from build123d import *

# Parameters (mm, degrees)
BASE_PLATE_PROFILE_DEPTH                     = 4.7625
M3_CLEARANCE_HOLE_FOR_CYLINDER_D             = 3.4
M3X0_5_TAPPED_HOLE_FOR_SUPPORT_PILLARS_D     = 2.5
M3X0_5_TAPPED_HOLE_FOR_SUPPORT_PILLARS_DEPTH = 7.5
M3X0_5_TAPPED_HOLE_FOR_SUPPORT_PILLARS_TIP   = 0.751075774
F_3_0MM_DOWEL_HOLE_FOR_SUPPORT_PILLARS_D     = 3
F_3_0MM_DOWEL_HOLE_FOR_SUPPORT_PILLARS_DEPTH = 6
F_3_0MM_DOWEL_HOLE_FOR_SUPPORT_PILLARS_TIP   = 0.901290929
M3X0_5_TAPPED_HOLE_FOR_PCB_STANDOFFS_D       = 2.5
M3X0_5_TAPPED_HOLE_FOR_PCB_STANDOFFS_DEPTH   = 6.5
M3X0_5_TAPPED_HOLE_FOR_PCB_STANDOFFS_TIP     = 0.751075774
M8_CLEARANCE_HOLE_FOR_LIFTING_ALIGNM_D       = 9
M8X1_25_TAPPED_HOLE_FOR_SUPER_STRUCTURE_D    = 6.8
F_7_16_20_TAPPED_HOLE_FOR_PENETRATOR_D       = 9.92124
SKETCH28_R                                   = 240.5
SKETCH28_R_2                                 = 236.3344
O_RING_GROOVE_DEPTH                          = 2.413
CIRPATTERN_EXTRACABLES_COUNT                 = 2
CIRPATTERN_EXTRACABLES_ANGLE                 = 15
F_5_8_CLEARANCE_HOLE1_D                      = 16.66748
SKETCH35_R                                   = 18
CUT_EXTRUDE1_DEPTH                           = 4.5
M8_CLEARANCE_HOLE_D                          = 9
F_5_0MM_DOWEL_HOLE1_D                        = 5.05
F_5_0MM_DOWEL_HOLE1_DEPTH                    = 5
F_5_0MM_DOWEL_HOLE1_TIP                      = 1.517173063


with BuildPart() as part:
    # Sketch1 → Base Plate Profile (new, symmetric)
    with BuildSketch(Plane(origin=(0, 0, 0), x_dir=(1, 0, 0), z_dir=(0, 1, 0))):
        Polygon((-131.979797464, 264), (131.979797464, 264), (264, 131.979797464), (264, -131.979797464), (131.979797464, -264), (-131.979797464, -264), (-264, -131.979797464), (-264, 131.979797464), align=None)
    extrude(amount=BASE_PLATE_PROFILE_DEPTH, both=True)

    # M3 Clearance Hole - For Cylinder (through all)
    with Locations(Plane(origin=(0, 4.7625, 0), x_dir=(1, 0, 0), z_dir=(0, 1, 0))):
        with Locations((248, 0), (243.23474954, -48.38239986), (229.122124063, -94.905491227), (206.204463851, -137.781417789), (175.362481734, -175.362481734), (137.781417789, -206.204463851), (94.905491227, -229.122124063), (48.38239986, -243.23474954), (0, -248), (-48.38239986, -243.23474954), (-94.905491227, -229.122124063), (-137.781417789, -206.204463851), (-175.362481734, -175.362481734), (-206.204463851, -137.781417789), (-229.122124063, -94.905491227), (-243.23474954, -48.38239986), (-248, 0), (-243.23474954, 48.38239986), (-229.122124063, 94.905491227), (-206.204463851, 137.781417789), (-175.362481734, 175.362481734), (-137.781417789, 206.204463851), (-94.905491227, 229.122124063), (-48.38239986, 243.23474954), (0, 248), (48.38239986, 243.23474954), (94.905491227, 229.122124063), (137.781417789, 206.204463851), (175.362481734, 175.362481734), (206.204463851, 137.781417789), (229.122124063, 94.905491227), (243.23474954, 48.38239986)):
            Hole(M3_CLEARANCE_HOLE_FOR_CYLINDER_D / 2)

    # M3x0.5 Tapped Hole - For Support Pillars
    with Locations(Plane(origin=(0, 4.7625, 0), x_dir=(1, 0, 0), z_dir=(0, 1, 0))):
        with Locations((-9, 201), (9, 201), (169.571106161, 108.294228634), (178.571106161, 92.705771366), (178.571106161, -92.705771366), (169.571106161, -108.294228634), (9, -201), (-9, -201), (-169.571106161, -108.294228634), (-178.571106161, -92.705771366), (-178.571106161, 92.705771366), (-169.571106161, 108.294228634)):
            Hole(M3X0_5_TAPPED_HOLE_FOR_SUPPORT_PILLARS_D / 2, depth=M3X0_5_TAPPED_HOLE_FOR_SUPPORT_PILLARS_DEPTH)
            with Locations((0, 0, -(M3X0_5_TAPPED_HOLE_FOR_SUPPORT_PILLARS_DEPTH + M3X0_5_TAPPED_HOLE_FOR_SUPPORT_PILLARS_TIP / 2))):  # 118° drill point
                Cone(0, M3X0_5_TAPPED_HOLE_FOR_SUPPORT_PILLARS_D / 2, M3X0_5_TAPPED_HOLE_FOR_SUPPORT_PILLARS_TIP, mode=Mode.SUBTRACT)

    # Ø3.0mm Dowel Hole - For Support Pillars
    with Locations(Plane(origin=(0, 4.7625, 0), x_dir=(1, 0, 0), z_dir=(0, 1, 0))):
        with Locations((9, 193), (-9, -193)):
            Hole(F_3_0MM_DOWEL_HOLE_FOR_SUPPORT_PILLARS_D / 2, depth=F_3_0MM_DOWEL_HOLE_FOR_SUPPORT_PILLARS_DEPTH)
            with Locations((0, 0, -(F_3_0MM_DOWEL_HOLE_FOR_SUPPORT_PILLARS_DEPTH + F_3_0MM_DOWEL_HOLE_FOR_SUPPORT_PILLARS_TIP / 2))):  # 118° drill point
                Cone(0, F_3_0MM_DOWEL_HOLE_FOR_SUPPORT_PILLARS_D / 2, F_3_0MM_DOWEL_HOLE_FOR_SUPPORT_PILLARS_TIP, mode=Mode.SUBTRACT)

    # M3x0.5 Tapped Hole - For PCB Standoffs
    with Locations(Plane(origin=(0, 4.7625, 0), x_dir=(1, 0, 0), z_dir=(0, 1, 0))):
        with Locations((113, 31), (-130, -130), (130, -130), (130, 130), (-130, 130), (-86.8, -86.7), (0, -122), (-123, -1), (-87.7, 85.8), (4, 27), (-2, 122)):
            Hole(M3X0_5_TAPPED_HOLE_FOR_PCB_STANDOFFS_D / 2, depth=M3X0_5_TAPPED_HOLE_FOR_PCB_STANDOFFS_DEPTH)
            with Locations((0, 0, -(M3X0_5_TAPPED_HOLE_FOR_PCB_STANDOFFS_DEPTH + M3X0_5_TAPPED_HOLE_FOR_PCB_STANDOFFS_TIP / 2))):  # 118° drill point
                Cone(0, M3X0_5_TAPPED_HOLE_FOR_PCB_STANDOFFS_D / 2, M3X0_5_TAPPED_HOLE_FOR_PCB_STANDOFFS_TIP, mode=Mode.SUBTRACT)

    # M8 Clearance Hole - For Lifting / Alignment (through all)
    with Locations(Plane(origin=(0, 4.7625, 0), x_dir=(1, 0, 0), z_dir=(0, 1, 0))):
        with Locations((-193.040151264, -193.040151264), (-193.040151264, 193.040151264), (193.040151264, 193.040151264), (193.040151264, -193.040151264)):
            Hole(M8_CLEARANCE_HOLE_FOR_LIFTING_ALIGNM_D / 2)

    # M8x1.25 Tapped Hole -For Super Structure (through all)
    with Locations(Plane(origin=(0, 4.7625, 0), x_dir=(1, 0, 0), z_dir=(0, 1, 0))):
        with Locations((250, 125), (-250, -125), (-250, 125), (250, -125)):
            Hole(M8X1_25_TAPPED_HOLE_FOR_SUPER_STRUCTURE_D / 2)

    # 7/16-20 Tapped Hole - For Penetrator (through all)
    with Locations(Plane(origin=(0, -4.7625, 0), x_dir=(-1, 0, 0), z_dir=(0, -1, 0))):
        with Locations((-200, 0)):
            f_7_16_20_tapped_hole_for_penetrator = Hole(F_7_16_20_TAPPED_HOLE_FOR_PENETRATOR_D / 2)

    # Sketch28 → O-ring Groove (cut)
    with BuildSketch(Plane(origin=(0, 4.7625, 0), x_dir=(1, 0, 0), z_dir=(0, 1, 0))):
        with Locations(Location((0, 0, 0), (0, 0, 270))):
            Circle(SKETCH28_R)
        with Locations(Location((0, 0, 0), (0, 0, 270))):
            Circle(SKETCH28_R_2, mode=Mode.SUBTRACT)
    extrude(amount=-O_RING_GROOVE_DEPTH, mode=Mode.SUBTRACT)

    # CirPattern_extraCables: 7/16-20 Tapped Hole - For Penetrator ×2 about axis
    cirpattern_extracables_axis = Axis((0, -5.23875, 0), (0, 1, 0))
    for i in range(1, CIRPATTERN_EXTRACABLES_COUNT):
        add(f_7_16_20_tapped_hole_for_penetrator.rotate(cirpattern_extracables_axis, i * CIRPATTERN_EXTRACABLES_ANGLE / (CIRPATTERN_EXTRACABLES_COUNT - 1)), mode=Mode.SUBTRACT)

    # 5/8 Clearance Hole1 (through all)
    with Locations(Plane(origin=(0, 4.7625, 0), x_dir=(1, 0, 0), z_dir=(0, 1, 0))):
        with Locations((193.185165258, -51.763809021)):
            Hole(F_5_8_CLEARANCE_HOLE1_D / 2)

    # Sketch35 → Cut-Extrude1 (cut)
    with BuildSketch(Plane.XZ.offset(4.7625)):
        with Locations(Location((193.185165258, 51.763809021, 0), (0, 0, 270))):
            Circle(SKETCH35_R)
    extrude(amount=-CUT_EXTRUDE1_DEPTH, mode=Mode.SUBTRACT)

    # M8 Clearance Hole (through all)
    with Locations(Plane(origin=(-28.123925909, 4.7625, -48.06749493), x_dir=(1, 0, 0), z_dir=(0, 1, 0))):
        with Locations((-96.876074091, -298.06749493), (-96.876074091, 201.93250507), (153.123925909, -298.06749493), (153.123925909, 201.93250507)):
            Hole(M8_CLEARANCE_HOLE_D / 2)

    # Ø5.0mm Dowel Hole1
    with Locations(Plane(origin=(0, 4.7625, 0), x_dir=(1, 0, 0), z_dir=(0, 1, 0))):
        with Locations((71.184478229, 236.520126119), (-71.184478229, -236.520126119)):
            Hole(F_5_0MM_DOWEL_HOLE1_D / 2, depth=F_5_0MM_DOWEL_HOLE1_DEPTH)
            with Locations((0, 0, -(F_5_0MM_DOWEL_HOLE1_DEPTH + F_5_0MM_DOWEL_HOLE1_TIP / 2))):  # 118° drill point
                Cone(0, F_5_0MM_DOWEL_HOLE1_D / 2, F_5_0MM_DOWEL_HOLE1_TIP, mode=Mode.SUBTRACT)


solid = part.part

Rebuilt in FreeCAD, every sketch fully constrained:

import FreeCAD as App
import Part
import Sketcher


def add_polygon(sketch, points):
    """Adds a closed chain of lines whose ends are joined by coincident constraints."""
    first, n = sketch.GeometryCount, len(points)
    for a, b in zip(points, points[1:] + points[:1]):
        sketch.addGeometry(Part.LineSegment(App.Vector(*a, 0), App.Vector(*b, 0)), False)
    for i in range(n):
        sketch.addConstraint(Sketcher.Constraint("Coincident", first + i, 2, first + (i + 1) % n, 1))

doc = App.newDocument("Part")
body = doc.addObject("PartDesign::Body", "Body")

# Sketch on XZ plane
sketch1 = body.newObject("Sketcher::SketchObject", "Sketch")
sketch1.AttachmentSupport = (doc.getObject("XZ_Plane"), [""])
sketch1.MapMode = "FlatFace"
add_polygon(sketch1, [(132, -264), (-132, -264), (-264, -132), (-264, 132), (-132, 264), (132, 264), (264, 132), (264, -132)])  # lines 0-7
sketch1.addConstraint([
    Sketcher.Constraint("Horizontal", 0),
    Sketcher.Constraint("Vertical", 2),
    Sketcher.Constraint("Horizontal", 4),
    Sketcher.Constraint("Vertical", 6),
    Sketcher.Constraint("Symmetric", 0, 2, 4, 2, -1, 1),
    Sketcher.Constraint("Symmetric", 1, 2, 5, 2, -1, 1),
    Sketcher.Constraint("Perpendicular", 1, 3),
    Sketcher.Constraint("Perpendicular", 5, 7),
    Sketcher.Constraint("Horizontal", 2, 2, 5, 2),
    Sketcher.Constraint("Horizontal", 1, 2, 6, 2),
    Sketcher.Constraint("Vertical", 0, 2, 3, 2),
    Sketcher.Constraint("Equal", 4, 2),
    Sketcher.Constraint("DistanceY", 0, 2, -1, 1, 264.0),
    Sketcher.Constraint("Distance", 1, 186.704761),
])
pad1 = body.newObject("PartDesign::Pad", "Pad")
pad1.Profile = sketch1
pad1.Length = 9.525
pad1.Midplane = True

# Sketch on XZ plane
sketch2 = body.newObject("Sketcher::SketchObject", "Sketch001")
sketch2.AttachmentSupport = (doc.getObject("XZ_Plane"), [""])
sketch2.MapMode = "FlatFace"
sketch2.AttachmentOffset = App.Placement(App.Vector(0, 0, -4.7625), App.Rotation())
sketch2.addGeometry([
    Part.Circle(App.Vector(248, 0, 0), App.Vector(0, 0, 1), 1.7),  # 0
    Part.Circle(App.Vector(243.2, 48.4, 0), App.Vector(0, 0, 1), 1.7),  # 1
    Part.Circle(App.Vector(229.1, 94.9, 0), App.Vector(0, 0, 1), 1.7),  # 2
    Part.Circle(App.Vector(206.2, 137.8, 0), App.Vector(0, 0, 1), 1.7),  # 3
    Part.Circle(App.Vector(175.4, 175.4, 0), App.Vector(0, 0, 1), 1.7),  # 4
    Part.Circle(App.Vector(137.8, 206.2, 0), App.Vector(0, 0, 1), 1.7),  # 5
    Part.Circle(App.Vector(94.9, 229.1, 0), App.Vector(0, 0, 1), 1.7),  # 6
    Part.Circle(App.Vector(48.4, 243.2, 0), App.Vector(0, 0, 1), 1.7),  # 7
    Part.Circle(App.Vector(0, 248, 0), App.Vector(0, 0, 1), 1.7),  # 8
    Part.Circle(App.Vector(-48.4, 243.2, 0), App.Vector(0, 0, 1), 1.7),  # 9
    Part.Circle(App.Vector(-94.9, 229.1, 0), App.Vector(0, 0, 1), 1.7),  # 10
    Part.Circle(App.Vector(-137.8, 206.2, 0), App.Vector(0, 0, 1), 1.7),  # 11
    Part.Circle(App.Vector(-175.4, 175.4, 0), App.Vector(0, 0, 1), 1.7),  # 12
    Part.Circle(App.Vector(-206.2, 137.8, 0), App.Vector(0, 0, 1), 1.7),  # 13
    Part.Circle(App.Vector(-229.1, 94.9, 0), App.Vector(0, 0, 1), 1.7),  # 14
    Part.Circle(App.Vector(-243.2, 48.4, 0), App.Vector(0, 0, 1), 1.7),  # 15
    Part.Circle(App.Vector(-248, 0, 0), App.Vector(0, 0, 1), 1.7),  # 16
    Part.Circle(App.Vector(-243.2, -48.4, 0), App.Vector(0, 0, 1), 1.7),  # 17
    Part.Circle(App.Vector(-229.1, -94.9, 0), App.Vector(0, 0, 1), 1.7),  # 18
    Part.Circle(App.Vector(-206.2, -137.8, 0), App.Vector(0, 0, 1), 1.7),  # 19
    Part.Circle(App.Vector(-175.4, -175.4, 0), App.Vector(0, 0, 1), 1.7),  # 20
    Part.Circle(App.Vector(-137.8, -206.2, 0), App.Vector(0, 0, 1), 1.7),  # 21
    Part.Circle(App.Vector(-94.9, -229.1, 0), App.Vector(0, 0, 1), 1.7),  # 22
    Part.Circle(App.Vector(-48.4, -243.2, 0), App.Vector(0, 0, 1), 1.7),  # 23
    Part.Circle(App.Vector(0, -248, 0), App.Vector(0, 0, 1), 1.7),  # 24
    Part.Circle(App.Vector(48.4, -243.2, 0), App.Vector(0, 0, 1), 1.7),  # 25
    Part.Circle(App.Vector(94.9, -229.1, 0), App.Vector(0, 0, 1), 1.7),  # 26
    Part.Circle(App.Vector(137.8, -206.2, 0), App.Vector(0, 0, 1), 1.7),  # 27
    Part.Circle(App.Vector(175.4, -175.4, 0), App.Vector(0, 0, 1), 1.7),  # 28
    Part.Circle(App.Vector(206.2, -137.8, 0), App.Vector(0, 0, 1), 1.7),  # 29
    Part.Circle(App.Vector(229.1, -94.9, 0), App.Vector(0, 0, 1), 1.7),  # 30
    Part.Circle(App.Vector(243.2, -48.4, 0), App.Vector(0, 0, 1), 1.7),  # 31
], False)
sketch2.addConstraint([
    Sketcher.Constraint("Equal", 0, 1),
    Sketcher.Constraint("Equal", 1, 2),
    Sketcher.Constraint("Equal", 2, 3),
    Sketcher.Constraint("Equal", 3, 4),
    Sketcher.Constraint("Equal", 4, 5),
    Sketcher.Constraint("Equal", 5, 6),
    Sketcher.Constraint("Equal", 6, 7),
    Sketcher.Constraint("Equal", 7, 8),
    Sketcher.Constraint("Equal", 8, 9),
    Sketcher.Constraint("Equal", 9, 10),
    Sketcher.Constraint("Equal", 10, 11),
    Sketcher.Constraint("Equal", 11, 12),
    Sketcher.Constraint("Equal", 12, 13),
    Sketcher.Constraint("Equal", 13, 14),
    Sketcher.Constraint("Equal", 14, 15),
    Sketcher.Constraint("Equal", 15, 16),
    Sketcher.Constraint("Equal", 16, 17),
    Sketcher.Constraint("Equal", 17, 18),
    Sketcher.Constraint("Equal", 18, 19),
    Sketcher.Constraint("Equal", 19, 20),
    Sketcher.Constraint("Equal", 20, 21),
    Sketcher.Constraint("Equal", 21, 22),
    Sketcher.Constraint("Equal", 22, 23),
    Sketcher.Constraint("Equal", 23, 24),
    Sketcher.Constraint("Equal", 24, 25),
    Sketcher.Constraint("Equal", 25, 26),
    Sketcher.Constraint("Equal", 26, 27),
    Sketcher.Constraint("Equal", 27, 28),
    Sketcher.Constraint("Equal", 28, 29),
    Sketcher.Constraint("Equal", 29, 30),
    Sketcher.Constraint("Equal", 30, 31),
    Sketcher.Constraint("Symmetric", 0, 3, 16, 3, -1, 1),
    Sketcher.Constraint("Symmetric", 1, 3, 17, 3, -1, 1),
    Sketcher.Constraint("Symmetric", 2, 3, 18, 3, -1, 1),
    Sketcher.Constraint("Symmetric", 3, 3, 19, 3, -1, 1),
    Sketcher.Constraint("Symmetric", 4, 3, 20, 3, -1, 1),
    Sketcher.Constraint("Symmetric", 5, 3, 21, 3, -1, 1),
    Sketcher.Constraint("Symmetric", 6, 3, 22, 3, -1, 1),
    Sketcher.Constraint("Symmetric", 7, 3, 23, 3, -1, 1),
    Sketcher.Constraint("Symmetric", 8, 3, 24, 3, -1, 1),
    Sketcher.Constraint("Symmetric", 9, 3, 25, 3, -1, 1),
    Sketcher.Constraint("Symmetric", 10, 3, 26, 3, -1, 1),
    Sketcher.Constraint("Symmetric", 11, 3, 27, 3, -1, 1),
    Sketcher.Constraint("Symmetric", 12, 3, 28, 3, -1, 1),
    Sketcher.Constraint("Symmetric", 13, 3, 29, 3, -1, 1),
    Sketcher.Constraint("Symmetric", 14, 3, 30, 3, -1, 1),
    Sketcher.Constraint("Symmetric", 15, 3, 31, 3, -1, 1),
    Sketcher.Constraint("Symmetric", 7, 3, 9, 3, -2),
    Sketcher.Constraint("Symmetric", 6, 3, 10, 3, -2),
    Sketcher.Constraint("Symmetric", 5, 3, 11, 3, -2),
    Sketcher.Constraint("Symmetric", 4, 3, 12, 3, -2),
    Sketcher.Constraint("Symmetric", 3, 3, 13, 3, -2),
    Sketcher.Constraint("Symmetric", 2, 3, 14, 3, -2),
    Sketcher.Constraint("Symmetric", 1, 3, 15, 3, -2),
    Sketcher.Constraint("PointOnObject", 0, 3, -1),
    Sketcher.Constraint("PointOnObject", 8, 3, -2),
    Sketcher.Constraint("Diameter", 0, 3.4),
    Sketcher.Constraint("DistanceX", -1, 1, 0, 3, 248.0),
    Sketcher.Constraint("DistanceY", -1, 1, 8, 3, 248.0),
    Sketcher.Constraint("DistanceY", -1, 1, 1, 3, 48.3824),
    Sketcher.Constraint("DistanceX", -1, 1, 7, 3, 48.3824),
    Sketcher.Constraint("DistanceX", -1, 1, 1, 3, 243.23475),
    Sketcher.Constraint("DistanceY", -1, 1, 2, 3, 94.905491),
    Sketcher.Constraint("DistanceX", -1, 1, 4, 3, 175.362482),
    Sketcher.Constraint("DistanceY", -1, 1, 4, 3, 175.362482),
    Sketcher.Constraint("DistanceX", -1, 1, 6, 3, 94.905491),
    Sketcher.Constraint("DistanceY", -1, 1, 7, 3, 243.23475),
    Sketcher.Constraint("DistanceX", 3, 3, 2, 3, 22.91766),
    Sketcher.Constraint("DistanceX", 5, 3, 1, 3, 105.453332),
    Sketcher.Constraint("DistanceY", 5, 3, 6, 3, 22.91766),
    Sketcher.Constraint("DistanceY", 3, 3, 7, 3, 105.453332),
    Sketcher.Constraint("DistanceX", -1, 1, 2, 3, 229.122124),
    Sketcher.Constraint("DistanceY", -1, 1, 5, 3, 206.204464),
])
doc.recompute()
hole = body.newObject("PartDesign::Hole", "Hole")
hole.Profile = sketch2
hole.ThreadType = "None"
hole.Diameter = 3.4
hole.DepthType = "ThroughAll"
hole.Reversed = True

# Sketch on XZ plane
sketch3 = body.newObject("Sketcher::SketchObject", "Sketch002")
sketch3.AttachmentSupport = (doc.getObject("XZ_Plane"), [""])
sketch3.MapMode = "FlatFace"
sketch3.AttachmentOffset = App.Placement(App.Vector(0, 0, -4.7625), App.Rotation())
sketch3.addGeometry([
    Part.Circle(App.Vector(-9, -201, 0), App.Vector(0, 0, 1), 1.2),  # 0
    Part.Circle(App.Vector(9, -201, 0), App.Vector(0, 0, 1), 1.2),  # 1
    Part.Circle(App.Vector(169.6, -108.3, 0), App.Vector(0, 0, 1), 1.2),  # 2
    Part.Circle(App.Vector(178.6, -92.7, 0), App.Vector(0, 0, 1), 1.2),  # 3
    Part.Circle(App.Vector(178.6, 92.7, 0), App.Vector(0, 0, 1), 1.2),  # 4
    Part.Circle(App.Vector(169.6, 108.3, 0), App.Vector(0, 0, 1), 1.2),  # 5
    Part.Circle(App.Vector(9, 201, 0), App.Vector(0, 0, 1), 1.2),  # 6
    Part.Circle(App.Vector(-9, 201, 0), App.Vector(0, 0, 1), 1.2),  # 7
    Part.Circle(App.Vector(-169.6, 108.3, 0), App.Vector(0, 0, 1), 1.2),  # 8
    Part.Circle(App.Vector(-178.6, 92.7, 0), App.Vector(0, 0, 1), 1.2),  # 9
    Part.Circle(App.Vector(-178.6, -92.7, 0), App.Vector(0, 0, 1), 1.2),  # 10
    Part.Circle(App.Vector(-169.6, -108.3, 0), App.Vector(0, 0, 1), 1.2),  # 11
], False)
sketch3.addConstraint([
    Sketcher.Constraint("Equal", 0, 1),
    Sketcher.Constraint("Equal", 1, 2),
    Sketcher.Constraint("Equal", 2, 3),
    Sketcher.Constraint("Equal", 3, 4),
    Sketcher.Constraint("Equal", 4, 5),
    Sketcher.Constraint("Equal", 5, 6),
    Sketcher.Constraint("Equal", 6, 7),
    Sketcher.Constraint("Equal", 7, 8),
    Sketcher.Constraint("Equal", 8, 9),
    Sketcher.Constraint("Equal", 9, 10),
    Sketcher.Constraint("Equal", 10, 11),
    Sketcher.Constraint("Symmetric", 0, 3, 6, 3, -1, 1),
    Sketcher.Constraint("Symmetric", 1, 3, 7, 3, -1, 1),
    Sketcher.Constraint("Symmetric", 2, 3, 8, 3, -1, 1),
    Sketcher.Constraint("Symmetric", 3, 3, 9, 3, -1, 1),
    Sketcher.Constraint("Symmetric", 4, 3, 10, 3, -1, 1),
    Sketcher.Constraint("Symmetric", 5, 3, 11, 3, -1, 1),
    Sketcher.Constraint("Symmetric", 0, 3, 1, 3, -2),
    Sketcher.Constraint("Symmetric", 5, 3, 8, 3, -2),
    Sketcher.Constraint("Symmetric", 4, 3, 9, 3, -2),
    Sketcher.Constraint("Diameter", 0, 2.5),
    Sketcher.Constraint("DistanceX", 0, 3, -1, 1, 9.0),
    Sketcher.Constraint("DistanceY", 0, 3, -1, 1, 201.0),
    Sketcher.Constraint("DistanceX", 2, 3, 3, 3, 9.0),
    Sketcher.Constraint("DistanceY", 2, 3, 4, 3, 201.0),
    Sketcher.Constraint("DistanceY", 2, 3, -1, 1, 108.294229),
    Sketcher.Constraint("DistanceX", -1, 1, 2, 3, 169.571106),
])
doc.recompute()
hole2 = body.newObject("PartDesign::Hole", "Hole001")
hole2.Profile = sketch3
hole2.ThreadType = "None"
hole2.Diameter = 2.5
hole2.DepthType = "Dimension"
hole2.Depth = 7.5
hole2.DrillPoint = "Angled"
hole2.DrillPointAngle = 118
hole2.Reversed = True

# Sketch on XZ plane
sketch4 = body.newObject("Sketcher::SketchObject", "Sketch003")
sketch4.AttachmentSupport = (doc.getObject("XZ_Plane"), [""])
sketch4.MapMode = "FlatFace"
sketch4.AttachmentOffset = App.Placement(App.Vector(0, 0, -4.7625), App.Rotation())
sketch4.addGeometry([
    Part.Circle(App.Vector(9, -193, 0), App.Vector(0, 0, 1), 1.5),
    Part.Circle(App.Vector(-9, 193, 0), App.Vector(0, 0, 1), 1.5),
], False)
sketch4.addConstraint([
    Sketcher.Constraint("Equal", 0, 1),
    Sketcher.Constraint("Symmetric", 0, 3, 1, 3, -1, 1),
    Sketcher.Constraint("Diameter", 0, 3.0),
    Sketcher.Constraint("DistanceX", -1, 1, 0, 3, 9.0),
    Sketcher.Constraint("DistanceY", 0, 3, -1, 1, 193.0),
])
doc.recompute()
hole3 = body.newObject("PartDesign::Hole", "Hole002")
hole3.Profile = sketch4
hole3.ThreadType = "None"
hole3.Diameter = 3
hole3.DepthType = "Dimension"
hole3.Depth = 6
hole3.DrillPoint = "Angled"
hole3.DrillPointAngle = 118
hole3.Reversed = True

# Sketch on XZ plane
sketch5 = body.newObject("Sketcher::SketchObject", "Sketch004")
sketch5.AttachmentSupport = (doc.getObject("XZ_Plane"), [""])
sketch5.MapMode = "FlatFace"
sketch5.AttachmentOffset = App.Placement(App.Vector(0, 0, -4.7625), App.Rotation())
sketch5.addGeometry([
    Part.Circle(App.Vector(113, -31, 0), App.Vector(0, 0, 1), 1.2),  # 0
    Part.Circle(App.Vector(-130, 130, 0), App.Vector(0, 0, 1), 1.2),  # 1
    Part.Circle(App.Vector(130, 130, 0), App.Vector(0, 0, 1), 1.2),  # 2
    Part.Circle(App.Vector(130, -130, 0), App.Vector(0, 0, 1), 1.2),  # 3
    Part.Circle(App.Vector(-130, -130, 0), App.Vector(0, 0, 1), 1.2),  # 4
    Part.Circle(App.Vector(-86.8, 86.7, 0), App.Vector(0, 0, 1), 1.2),  # 5
    Part.Circle(App.Vector(0, 122, 0), App.Vector(0, 0, 1), 1.2),  # 6
    Part.Circle(App.Vector(-123, 1, 0), App.Vector(0, 0, 1), 1.2),  # 7
    Part.Circle(App.Vector(-87.7, -85.8, 0), App.Vector(0, 0, 1), 1.2),  # 8
    Part.Circle(App.Vector(4, -27, 0), App.Vector(0, 0, 1), 1.2),  # 9
    Part.Circle(App.Vector(-2, -122, 0), App.Vector(0, 0, 1), 1.2),  # 10
], False)
sketch5.addConstraint([
    Sketcher.Constraint("Equal", 0, 1),
    Sketcher.Constraint("Equal", 1, 2),
    Sketcher.Constraint("Equal", 2, 3),
    Sketcher.Constraint("Equal", 3, 4),
    Sketcher.Constraint("Equal", 4, 5),
    Sketcher.Constraint("Equal", 5, 6),
    Sketcher.Constraint("Equal", 6, 7),
    Sketcher.Constraint("Equal", 7, 8),
    Sketcher.Constraint("Equal", 8, 9),
    Sketcher.Constraint("Equal", 9, 10),
    Sketcher.Constraint("Symmetric", 1, 3, 3, 3, -1, 1),
    Sketcher.Constraint("Symmetric", 2, 3, 4, 3, -1, 1),
    Sketcher.Constraint("Symmetric", 1, 3, 2, 3, -2),
    Sketcher.Constraint("PointOnObject", 6, 3, -2),
    Sketcher.Constraint("Diameter", 0, 2.5),
    Sketcher.Constraint("DistanceX", -1, 1, 0, 3, 113.0),
    Sketcher.Constraint("DistanceY", 0, 3, -1, 1, 31.0),
    Sketcher.Constraint("DistanceX", 1, 3, -1, 1, 130.0),
    Sketcher.Constraint("DistanceY", -1, 1, 1, 3, 130.0),
    Sketcher.Constraint("DistanceY", -1, 1, 6, 3, 122.0),
    Sketcher.Constraint("DistanceX", 7, 3, -1, 1, 123.0),
    Sketcher.Constraint("DistanceY", -1, 1, 7, 3, 1.0),
    Sketcher.Constraint("DistanceX", -1, 1, 9, 3, 4.0),
    Sketcher.Constraint("DistanceY", 9, 3, -1, 1, 27.0),
    Sketcher.Constraint("DistanceX", 10, 3, -1, 1, 2.0),
    Sketcher.Constraint("DistanceY", 10, 3, -1, 1, 122.0),
    Sketcher.Constraint("DistanceX", 5, 3, -1, 1, 86.8),
    Sketcher.Constraint("DistanceY", -1, 1, 5, 3, 86.7),
    Sketcher.Constraint("DistanceX", 8, 3, -1, 1, 87.7),
    Sketcher.Constraint("DistanceY", 8, 3, -1, 1, 85.8),
])
doc.recompute()
hole4 = body.newObject("PartDesign::Hole", "Hole003")
hole4.Profile = sketch5
hole4.ThreadType = "None"
hole4.Diameter = 2.5
hole4.DepthType = "Dimension"
hole4.Depth = 6.5
hole4.DrillPoint = "Angled"
hole4.DrillPointAngle = 118
hole4.Reversed = True

# Sketch on XZ plane
sketch6 = body.newObject("Sketcher::SketchObject", "Sketch005")
sketch6.AttachmentSupport = (doc.getObject("XZ_Plane"), [""])
sketch6.MapMode = "FlatFace"
sketch6.AttachmentOffset = App.Placement(App.Vector(0, 0, -4.7625), App.Rotation())
sketch6.addGeometry([
    Part.Circle(App.Vector(-193, 193, 0), App.Vector(0, 0, 1), 4.5),
    Part.Circle(App.Vector(-193, -193, 0), App.Vector(0, 0, 1), 4.5),
    Part.Circle(App.Vector(193, -193, 0), App.Vector(0, 0, 1), 4.5),
    Part.Circle(App.Vector(193, 193, 0), App.Vector(0, 0, 1), 4.5),
], False)
sketch6.addConstraint([
    Sketcher.Constraint("Equal", 0, 1),
    Sketcher.Constraint("Equal", 1, 2),
    Sketcher.Constraint("Equal", 2, 3),
    Sketcher.Constraint("Symmetric", 0, 3, 2, 3, -1, 1),
    Sketcher.Constraint("Symmetric", 1, 3, 3, 3, -1, 1),
    Sketcher.Constraint("Symmetric", 1, 3, 2, 3, -2),
    Sketcher.Constraint("Diameter", 0, 9.0),
    Sketcher.Constraint("DistanceX", 0, 3, -1, 1, 193.040151),
    Sketcher.Constraint("DistanceY", -1, 1, 0, 3, 193.040151),
])
doc.recompute()
hole5 = body.newObject("PartDesign::Hole", "Hole004")
hole5.Profile = sketch6
hole5.ThreadType = "None"
hole5.Diameter = 9
hole5.DepthType = "ThroughAll"
hole5.Reversed = True

# Sketch on XZ plane
sketch7 = body.newObject("Sketcher::SketchObject", "Sketch006")
sketch7.AttachmentSupport = (doc.getObject("XZ_Plane"), [""])
sketch7.MapMode = "FlatFace"
sketch7.AttachmentOffset = App.Placement(App.Vector(0, 0, -4.7625), App.Rotation())
sketch7.addGeometry([
    Part.Circle(App.Vector(250, -125, 0), App.Vector(0, 0, 1), 3.4),
    Part.Circle(App.Vector(-250, 125, 0), App.Vector(0, 0, 1), 3.4),
    Part.Circle(App.Vector(-250, -125, 0), App.Vector(0, 0, 1), 3.4),
    Part.Circle(App.Vector(250, 125, 0), App.Vector(0, 0, 1), 3.4),
], False)
sketch7.addConstraint([
    Sketcher.Constraint("Equal", 0, 1),
    Sketcher.Constraint("Equal", 1, 2),
    Sketcher.Constraint("Equal", 2, 3),
    Sketcher.Constraint("Symmetric", 0, 3, 1, 3, -1, 1),
    Sketcher.Constraint("Symmetric", 2, 3, 3, 3, -1, 1),
    Sketcher.Constraint("Symmetric", 0, 3, 2, 3, -2),
    Sketcher.Constraint("Diameter", 0, 6.8),
    Sketcher.Constraint("DistanceX", -1, 1, 0, 3, 250.0),
    Sketcher.Constraint("DistanceY", 0, 3, -1, 1, 125.0),
])
doc.recompute()
hole6 = body.newObject("PartDesign::Hole", "Hole005")
hole6.Profile = sketch7
hole6.ThreadType = "None"
hole6.Diameter = 6.8
hole6.DepthType = "ThroughAll"
hole6.Reversed = True

# Sketch on XZ plane
sketch8 = body.newObject("Sketcher::SketchObject", "Sketch007")
sketch8.AttachmentSupport = (doc.getObject("XZ_Plane"), [""])
sketch8.MapMode = "FlatFace"
sketch8.AttachmentOffset = App.Placement(App.Vector(0, 0, 4.7625), App.Rotation())
sketch8.addGeometry(Part.Circle(App.Vector(200, 0, 0), App.Vector(0, 0, 1), 5), False)
sketch8.addConstraint([
    Sketcher.Constraint("PointOnObject", 0, 3, -1),
    Sketcher.Constraint("DistanceX", -1, 1, 0, 3, 200.0),
    Sketcher.Constraint("Diameter", 0, 9.92124),
])
doc.recompute()
hole7 = body.newObject("PartDesign::Hole", "Hole006")
hole7.Profile = sketch8
hole7.ThreadType = "None"
hole7.Diameter = 9.92124
hole7.DepthType = "ThroughAll"

# Sketch on XZ plane
sketch9 = body.newObject("Sketcher::SketchObject", "Sketch008")
sketch9.AttachmentSupport = (doc.getObject("XZ_Plane"), [""])
sketch9.MapMode = "FlatFace"
sketch9.AttachmentOffset = App.Placement(App.Vector(0, 0, -4.7625), App.Rotation())
sketch9.addGeometry([
    Part.Circle(App.Vector(0, 0, 0), App.Vector(0, 0, 1), 240),
    Part.Circle(App.Vector(0, 0, 0), App.Vector(0, 0, 1), 236),
], False)
sketch9.addConstraint([
    Sketcher.Constraint("Coincident", 0, 3, -1, 1),
    Sketcher.Constraint("Coincident", 1, 3, -1, 1),
    Sketcher.Constraint("Diameter", 0, 481.0),
    Sketcher.Constraint("Diameter", 1, 472.6688),
])
pocket1 = body.newObject("PartDesign::Pocket", "Pocket")
pocket1.Profile = sketch9
pocket1.Length = 2.413
pocket1.Reversed = True
doc.recompute()

polarpattern = body.newObject("PartDesign::PolarPattern", "PolarPattern")
polarpattern.Originals = [hole7]
polarpattern.Axis = (doc.getObject("Y_Axis"), [""])
polarpattern.Angle = 15
polarpattern.Occurrences = 2
body.Tip = polarpattern

# Sketch on XZ plane
sketch10 = body.newObject("Sketcher::SketchObject", "Sketch009")
sketch10.AttachmentSupport = (doc.getObject("XZ_Plane"), [""])
sketch10.MapMode = "FlatFace"
sketch10.AttachmentOffset = App.Placement(App.Vector(0, 0, -4.7625), App.Rotation())
sketch10.addGeometry(Part.Circle(App.Vector(193, 52, 0), App.Vector(0, 0, 1), 8), False)
sketch10.addConstraint([
    Sketcher.Constraint("Diameter", 0, 16.66748),
    Sketcher.Constraint("DistanceY", -1, 1, 0, 3, 51.763809),
    Sketcher.Constraint("DistanceX", -1, 1, 0, 3, 193.185165),
])
doc.recompute()
hole8 = body.newObject("PartDesign::Hole", "Hole007")
hole8.Profile = sketch10
hole8.ThreadType = "None"
hole8.Diameter = 16.66748
hole8.DepthType = "ThroughAll"
hole8.Reversed = True

# Sketch on XZ plane
sketch11 = body.newObject("Sketcher::SketchObject", "Sketch010")
sketch11.AttachmentSupport = (doc.getObject("XZ_Plane"), [""])
sketch11.MapMode = "FlatFace"
sketch11.AttachmentOffset = App.Placement(App.Vector(0, 0, 4.7625), App.Rotation())
sketch11.addGeometry(Part.Circle(App.Vector(193, 52, 0), App.Vector(0, 0, 1), 18), False)
sketch11.addConstraint([
    Sketcher.Constraint("Diameter", 0, 36.0),
    Sketcher.Constraint("DistanceY", -1, 1, 0, 3, 51.763809),
    Sketcher.Constraint("DistanceX", -1, 1, 0, 3, 193.185165),
])
pocket2 = body.newObject("PartDesign::Pocket", "Pocket001")
pocket2.Profile = sketch11
pocket2.Length = 4.5

# Sketch on XZ plane
sketch12 = body.newObject("Sketcher::SketchObject", "Sketch011")
sketch12.AttachmentSupport = (doc.getObject("XZ_Plane"), [""])
sketch12.MapMode = "FlatFace"
sketch12.AttachmentOffset = App.Placement(App.Vector(0, 0, -4.7625), App.Rotation())
sketch12.addGeometry([
    Part.Circle(App.Vector(-125, 250, 0), App.Vector(0, 0, 1), 4.5),
    Part.Circle(App.Vector(-125, -250, 0), App.Vector(0, 0, 1), 4.5),
    Part.Circle(App.Vector(125, 250, 0), App.Vector(0, 0, 1), 4.5),
    Part.Circle(App.Vector(125, -250, 0), App.Vector(0, 0, 1), 4.5),
], False)
sketch12.addConstraint([
    Sketcher.Constraint("Equal", 0, 1),
    Sketcher.Constraint("Equal", 1, 2),
    Sketcher.Constraint("Equal", 2, 3),
    Sketcher.Constraint("Symmetric", 1, 3, 2, 3, -1, 1),
    Sketcher.Constraint("Symmetric", 0, 3, 3, 3, -1, 1),
    Sketcher.Constraint("Symmetric", 0, 3, 2, 3, -2),
    Sketcher.Constraint("Diameter", 0, 9.0),
    Sketcher.Constraint("DistanceX", 0, 3, -1, 1, 125.0),
    Sketcher.Constraint("DistanceY", -1, 1, 0, 3, 250.0),
])
doc.recompute()
hole9 = body.newObject("PartDesign::Hole", "Hole008")
hole9.Profile = sketch12
hole9.ThreadType = "None"
hole9.Diameter = 9
hole9.DepthType = "ThroughAll"
hole9.Reversed = True

# Sketch on XZ plane
sketch13 = body.newObject("Sketcher::SketchObject", "Sketch012")
sketch13.AttachmentSupport = (doc.getObject("XZ_Plane"), [""])
sketch13.MapMode = "FlatFace"
sketch13.AttachmentOffset = App.Placement(App.Vector(0, 0, -4.7625), App.Rotation())
sketch13.addGeometry([
    Part.Circle(App.Vector(71.2, -236.5, 0), App.Vector(0, 0, 1), 2.5),
    Part.Circle(App.Vector(-71.2, 236.5, 0), App.Vector(0, 0, 1), 2.5),
], False)
sketch13.addConstraint([
    Sketcher.Constraint("Equal", 0, 1),
    Sketcher.Constraint("Symmetric", 0, 3, 1, 3, -1, 1),
    Sketcher.Constraint("Diameter", 0, 5.05),
    Sketcher.Constraint("DistanceX", -1, 1, 0, 3, 71.184478),
    Sketcher.Constraint("DistanceY", 0, 3, -1, 1, 236.520126),
])
doc.recompute()
hole10 = body.newObject("PartDesign::Hole", "Hole009")
hole10.Profile = sketch13
hole10.ThreadType = "None"
hole10.Diameter = 5.05
hole10.DepthType = "Dimension"
hole10.Depth = 5
hole10.DrillPoint = "Angled"
hole10.DrillPointAngle = 118
hole10.Reversed = True

doc.recompute()
